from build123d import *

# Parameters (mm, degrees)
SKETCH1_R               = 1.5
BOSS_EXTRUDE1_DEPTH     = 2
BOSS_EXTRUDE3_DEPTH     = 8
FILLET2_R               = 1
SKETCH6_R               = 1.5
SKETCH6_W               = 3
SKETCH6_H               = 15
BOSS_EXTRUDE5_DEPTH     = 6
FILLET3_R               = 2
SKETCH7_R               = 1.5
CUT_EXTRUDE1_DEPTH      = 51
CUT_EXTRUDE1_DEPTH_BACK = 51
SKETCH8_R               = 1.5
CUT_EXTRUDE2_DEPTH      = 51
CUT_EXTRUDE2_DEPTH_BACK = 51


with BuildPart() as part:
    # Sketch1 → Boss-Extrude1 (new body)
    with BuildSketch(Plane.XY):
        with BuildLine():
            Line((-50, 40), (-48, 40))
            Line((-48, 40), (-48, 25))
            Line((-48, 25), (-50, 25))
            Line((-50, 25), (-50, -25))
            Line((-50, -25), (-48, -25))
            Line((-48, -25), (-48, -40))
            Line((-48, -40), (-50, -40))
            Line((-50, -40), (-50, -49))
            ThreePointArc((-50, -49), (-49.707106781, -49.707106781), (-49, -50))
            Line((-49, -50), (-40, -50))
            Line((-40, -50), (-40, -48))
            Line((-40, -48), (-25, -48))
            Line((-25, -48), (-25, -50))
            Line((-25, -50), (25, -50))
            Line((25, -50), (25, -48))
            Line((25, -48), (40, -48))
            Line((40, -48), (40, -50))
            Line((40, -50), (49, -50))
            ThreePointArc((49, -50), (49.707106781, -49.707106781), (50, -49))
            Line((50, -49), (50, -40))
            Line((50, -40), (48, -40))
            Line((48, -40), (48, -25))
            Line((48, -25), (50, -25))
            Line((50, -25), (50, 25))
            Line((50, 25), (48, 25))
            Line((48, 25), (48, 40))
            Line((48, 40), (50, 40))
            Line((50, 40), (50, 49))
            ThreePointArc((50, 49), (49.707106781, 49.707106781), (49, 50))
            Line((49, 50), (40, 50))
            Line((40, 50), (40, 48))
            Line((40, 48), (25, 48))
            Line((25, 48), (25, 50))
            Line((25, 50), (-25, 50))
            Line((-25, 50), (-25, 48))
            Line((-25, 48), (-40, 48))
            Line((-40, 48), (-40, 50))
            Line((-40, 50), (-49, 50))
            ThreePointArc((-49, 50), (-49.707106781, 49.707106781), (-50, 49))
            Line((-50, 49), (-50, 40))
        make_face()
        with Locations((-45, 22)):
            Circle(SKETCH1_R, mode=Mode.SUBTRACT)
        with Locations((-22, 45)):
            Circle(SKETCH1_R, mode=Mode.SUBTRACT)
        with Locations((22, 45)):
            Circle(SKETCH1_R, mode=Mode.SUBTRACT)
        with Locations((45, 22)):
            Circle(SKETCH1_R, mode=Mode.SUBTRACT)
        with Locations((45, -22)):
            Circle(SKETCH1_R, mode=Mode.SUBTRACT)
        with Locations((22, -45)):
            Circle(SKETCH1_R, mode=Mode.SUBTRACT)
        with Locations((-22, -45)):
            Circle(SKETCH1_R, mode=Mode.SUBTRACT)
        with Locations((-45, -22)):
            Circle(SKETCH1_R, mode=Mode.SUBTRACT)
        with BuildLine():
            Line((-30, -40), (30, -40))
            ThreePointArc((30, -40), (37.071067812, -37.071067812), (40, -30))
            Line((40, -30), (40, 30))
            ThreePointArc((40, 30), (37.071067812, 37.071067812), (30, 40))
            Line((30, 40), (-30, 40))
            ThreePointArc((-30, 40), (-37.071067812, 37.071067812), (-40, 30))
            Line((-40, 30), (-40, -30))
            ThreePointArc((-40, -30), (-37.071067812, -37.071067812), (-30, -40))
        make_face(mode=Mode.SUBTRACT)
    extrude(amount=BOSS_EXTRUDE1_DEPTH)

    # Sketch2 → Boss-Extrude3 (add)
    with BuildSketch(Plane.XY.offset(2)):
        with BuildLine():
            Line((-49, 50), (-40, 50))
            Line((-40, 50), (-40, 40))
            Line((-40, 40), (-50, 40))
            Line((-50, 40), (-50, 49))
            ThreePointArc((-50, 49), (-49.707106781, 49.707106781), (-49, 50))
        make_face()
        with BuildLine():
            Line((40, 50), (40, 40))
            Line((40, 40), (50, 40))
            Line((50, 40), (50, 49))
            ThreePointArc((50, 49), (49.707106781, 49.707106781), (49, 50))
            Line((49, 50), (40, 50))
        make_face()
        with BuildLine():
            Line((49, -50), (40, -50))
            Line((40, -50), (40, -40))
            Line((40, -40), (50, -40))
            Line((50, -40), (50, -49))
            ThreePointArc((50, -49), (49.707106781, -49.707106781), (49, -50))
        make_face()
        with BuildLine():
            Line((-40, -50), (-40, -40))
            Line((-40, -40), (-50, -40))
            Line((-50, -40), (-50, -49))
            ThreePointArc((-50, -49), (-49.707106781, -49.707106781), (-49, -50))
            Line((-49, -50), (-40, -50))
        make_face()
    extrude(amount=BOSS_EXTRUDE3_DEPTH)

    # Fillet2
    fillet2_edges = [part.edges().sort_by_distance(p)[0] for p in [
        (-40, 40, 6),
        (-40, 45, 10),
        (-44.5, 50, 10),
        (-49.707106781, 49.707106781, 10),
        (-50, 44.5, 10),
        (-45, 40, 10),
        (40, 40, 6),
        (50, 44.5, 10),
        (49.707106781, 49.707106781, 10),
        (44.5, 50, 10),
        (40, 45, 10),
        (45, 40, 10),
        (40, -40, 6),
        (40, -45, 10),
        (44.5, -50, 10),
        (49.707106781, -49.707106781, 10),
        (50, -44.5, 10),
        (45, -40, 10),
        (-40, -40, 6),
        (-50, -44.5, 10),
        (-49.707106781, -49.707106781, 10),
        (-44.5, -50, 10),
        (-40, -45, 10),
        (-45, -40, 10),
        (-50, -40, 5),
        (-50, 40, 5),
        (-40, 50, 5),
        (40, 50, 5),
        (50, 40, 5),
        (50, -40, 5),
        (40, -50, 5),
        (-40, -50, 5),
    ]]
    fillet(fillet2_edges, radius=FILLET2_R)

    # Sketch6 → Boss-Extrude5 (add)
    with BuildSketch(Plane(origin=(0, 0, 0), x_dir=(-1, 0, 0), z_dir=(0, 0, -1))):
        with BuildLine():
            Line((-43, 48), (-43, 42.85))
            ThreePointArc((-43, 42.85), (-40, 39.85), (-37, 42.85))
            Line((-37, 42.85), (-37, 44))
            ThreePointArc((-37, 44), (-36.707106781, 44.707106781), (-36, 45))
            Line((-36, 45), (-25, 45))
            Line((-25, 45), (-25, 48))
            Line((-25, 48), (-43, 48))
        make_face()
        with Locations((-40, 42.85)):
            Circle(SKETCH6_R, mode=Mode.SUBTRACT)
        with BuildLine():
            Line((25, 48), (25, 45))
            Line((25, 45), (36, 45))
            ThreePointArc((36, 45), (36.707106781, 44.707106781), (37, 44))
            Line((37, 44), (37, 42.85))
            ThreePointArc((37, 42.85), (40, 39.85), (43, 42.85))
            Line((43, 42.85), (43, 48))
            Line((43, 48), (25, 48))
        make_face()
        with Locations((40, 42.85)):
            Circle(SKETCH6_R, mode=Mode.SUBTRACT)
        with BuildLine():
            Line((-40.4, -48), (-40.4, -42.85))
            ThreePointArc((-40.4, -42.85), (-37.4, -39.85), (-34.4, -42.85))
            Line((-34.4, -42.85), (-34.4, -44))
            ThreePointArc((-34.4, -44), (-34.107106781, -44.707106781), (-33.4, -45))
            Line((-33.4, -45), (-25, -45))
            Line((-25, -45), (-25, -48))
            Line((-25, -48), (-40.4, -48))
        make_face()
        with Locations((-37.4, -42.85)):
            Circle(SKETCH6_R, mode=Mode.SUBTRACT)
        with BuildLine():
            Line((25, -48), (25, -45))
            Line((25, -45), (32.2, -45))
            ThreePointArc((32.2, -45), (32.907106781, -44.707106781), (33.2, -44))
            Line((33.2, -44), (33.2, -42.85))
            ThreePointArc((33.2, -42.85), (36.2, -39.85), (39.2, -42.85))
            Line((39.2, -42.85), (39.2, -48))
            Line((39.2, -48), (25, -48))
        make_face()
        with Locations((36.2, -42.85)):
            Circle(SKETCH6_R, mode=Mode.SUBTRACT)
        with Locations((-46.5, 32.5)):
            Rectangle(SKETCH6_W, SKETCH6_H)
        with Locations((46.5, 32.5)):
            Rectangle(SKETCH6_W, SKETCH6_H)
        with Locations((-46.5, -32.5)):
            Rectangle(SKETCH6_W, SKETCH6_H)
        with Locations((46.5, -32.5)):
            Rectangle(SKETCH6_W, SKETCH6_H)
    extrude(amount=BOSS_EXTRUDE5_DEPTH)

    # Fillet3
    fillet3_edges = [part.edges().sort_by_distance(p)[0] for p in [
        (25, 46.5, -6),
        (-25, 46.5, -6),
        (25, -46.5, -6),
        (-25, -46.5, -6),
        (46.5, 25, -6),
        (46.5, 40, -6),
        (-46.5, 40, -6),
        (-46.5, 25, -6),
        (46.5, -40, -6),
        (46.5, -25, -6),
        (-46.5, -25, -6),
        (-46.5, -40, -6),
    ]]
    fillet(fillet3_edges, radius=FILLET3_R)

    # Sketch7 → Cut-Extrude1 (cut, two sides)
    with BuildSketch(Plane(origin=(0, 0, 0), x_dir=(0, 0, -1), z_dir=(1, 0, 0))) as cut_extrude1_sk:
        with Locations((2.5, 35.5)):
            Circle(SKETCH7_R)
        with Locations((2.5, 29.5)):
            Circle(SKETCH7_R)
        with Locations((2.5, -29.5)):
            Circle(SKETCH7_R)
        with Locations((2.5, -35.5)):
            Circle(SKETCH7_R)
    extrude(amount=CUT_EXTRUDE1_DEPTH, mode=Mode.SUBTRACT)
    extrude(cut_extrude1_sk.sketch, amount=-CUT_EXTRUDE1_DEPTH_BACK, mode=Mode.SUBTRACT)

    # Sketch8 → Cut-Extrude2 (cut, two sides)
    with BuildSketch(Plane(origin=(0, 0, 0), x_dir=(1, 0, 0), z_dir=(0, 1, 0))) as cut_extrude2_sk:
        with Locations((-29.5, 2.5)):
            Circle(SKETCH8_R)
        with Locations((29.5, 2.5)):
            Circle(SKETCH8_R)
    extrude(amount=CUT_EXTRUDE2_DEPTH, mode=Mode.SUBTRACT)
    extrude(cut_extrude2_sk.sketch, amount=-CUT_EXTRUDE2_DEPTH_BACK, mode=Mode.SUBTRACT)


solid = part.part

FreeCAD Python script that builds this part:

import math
import FreeCAD as App
import Part
import Sketcher

V = App.Vector
Q = App.Units.Quantity


def edges_at(feature, points):
    """Names of the edges that pass closest to the given points."""
    edges = feature.Shape.Edges
    near = lambda p: min(range(len(edges)), key=lambda i: edges[i].distToShape(Part.Vertex(*p))[0])
    return sorted({f"Edge{near(p) + 1}" for p in points})


def add_polygon(sketch, points):
    """Adds a closed chain of lines whose ends are joined by coincident constraints."""
    first, n = sketch.GeometryCount, len(points)
    for a, b in zip(points, points[1:] + points[:1]):
        sketch.addGeometry(Part.LineSegment(App.Vector(*a, 0), App.Vector(*b, 0)), False)
    for i in range(n):
        sketch.addConstraint(Sketcher.Constraint("Coincident", first + i, 2, first + (i + 1) % n, 1))

doc = App.newDocument("Part")
body = doc.addObject("PartDesign::Body", "Body")

# Sketch on XY plane
sketch1 = doc.addObject("Sketcher::SketchObject", "Sketch")
body.addObject(sketch1)
sketch1.AttachmentSupport = (doc.XY_Plane, [""])
sketch1.MapMode = "FlatFace"
sketch1.addGeometry([
    Part.LineSegment(V(-50, 40, 0), V(-48, 40, 0)),  # 0
    Part.LineSegment(V(-48, 40, 0), V(-48, 25, 0)),  # 1
    Part.LineSegment(V(-48, 25, 0), V(-50, 25, 0)),  # 2
    Part.LineSegment(V(-50, 25, 0), V(-50, -25, 0)),  # 3
    Part.LineSegment(V(-50, -25, 0), V(-48, -25, 0)),  # 4
    Part.LineSegment(V(-48, -25, 0), V(-48, -40, 0)),  # 5
    Part.LineSegment(V(-48, -40, 0), V(-50, -40, 0)),  # 6
    Part.LineSegment(V(-50, -40, 0), V(-50, -49, 0)),  # 7
    Part.ArcOfCircle(Part.Circle(V(-49, -49, 0), V(0, 0, 1), 1), math.radians(-180), math.radians(-90)),  # 8
    Part.LineSegment(V(-49, -50, 0), V(-40, -50, 0)),  # 9
    Part.LineSegment(V(-40, -50, 0), V(-40, -48, 0)),  # 10
    Part.LineSegment(V(-40, -48, 0), V(-25, -48, 0)),  # 11
    Part.LineSegment(V(-25, -48, 0), V(-25, -50, 0)),  # 12
    Part.LineSegment(V(-25, -50, 0), V(25, -50, 0)),  # 13
    Part.LineSegment(V(25, -50, 0), V(25, -48, 0)),  # 14
    Part.LineSegment(V(25, -48, 0), V(40, -48, 0)),  # 15
    Part.LineSegment(V(40, -48, 0), V(40, -50, 0)),  # 16
    Part.LineSegment(V(40, -50, 0), V(49, -50, 0)),  # 17
    Part.ArcOfCircle(Part.Circle(V(49, -49, 0), V(0, 0, 1), 1), math.radians(-90), math.radians(0)),  # 18
    Part.LineSegment(V(50, -49, 0), V(50, -40, 0)),  # 19
    Part.LineSegment(V(50, -40, 0), V(48, -40, 0)),  # 20
    Part.LineSegment(V(48, -40, 0), V(48, -25, 0)),  # 21
    Part.LineSegment(V(48, -25, 0), V(50, -25, 0)),  # 22
    Part.LineSegment(V(50, -25, 0), V(50, 25, 0)),  # 23
    Part.LineSegment(V(50, 25, 0), V(48, 25, 0)),  # 24
    Part.LineSegment(V(48, 25, 0), V(48, 40, 0)),  # 25
    Part.LineSegment(V(48, 40, 0), V(50, 40, 0)),  # 26
    Part.LineSegment(V(50, 40, 0), V(50, 49, 0)),  # 27
    Part.ArcOfCircle(Part.Circle(V(49, 49, 0), V(0, 0, 1), 1), math.radians(0), math.radians(90)),  # 28
    Part.LineSegment(V(49, 50, 0), V(40, 50, 0)),  # 29
    Part.LineSegment(V(40, 50, 0), V(40, 48, 0)),  # 30
    Part.LineSegment(V(40, 48, 0), V(25, 48, 0)),  # 31
    Part.LineSegment(V(25, 48, 0), V(25, 50, 0)),  # 32
    Part.LineSegment(V(25, 50, 0), V(-25, 50, 0)),  # 33
    Part.LineSegment(V(-25, 50, 0), V(-25, 48, 0)),  # 34
    Part.LineSegment(V(-25, 48, 0), V(-40, 48, 0)),  # 35
    Part.LineSegment(V(-40, 48, 0), V(-40, 50, 0)),  # 36
    Part.LineSegment(V(-40, 50, 0), V(-49, 50, 0)),  # 37
    Part.ArcOfCircle(Part.Circle(V(-49, 49, 0), V(0, 0, 1), 1), math.radians(90), math.radians(180)),  # 38
    Part.LineSegment(V(-50, 49, 0), V(-50, 40, 0)),  # 39
    Part.Circle(V(-22, -45, 0), V(0, 0, 1), 1.5),  # 40
    Part.Circle(V(-45, -22, 0), V(0, 0, 1), 1.5),  # 41
    Part.Circle(V(22, -45, 0), V(0, 0, 1), 1.5),  # 42
    Part.Circle(V(45, -22, 0), V(0, 0, 1), 1.5),  # 43
    Part.Circle(V(-45, 22, 0), V(0, 0, 1), 1.5),  # 44
    Part.Circle(V(-22, 45, 0), V(0, 0, 1), 1.5),  # 45
    Part.LineSegment(V(30, -40, 0), V(-30, -40, 0)),  # 46
    Part.ArcOfCircle(Part.Circle(V(-30, -30, 0), V(0, 0, 1), 10), math.radians(180), math.radians(270)),  # 47
    Part.LineSegment(V(-40, -30, 0), V(-40, 30, 0)),  # 48
    Part.ArcOfCircle(Part.Circle(V(-30, 30, 0), V(0, 0, 1), 10), math.radians(90), math.radians(180)),  # 49
    Part.LineSegment(V(-30, 40, 0), V(30, 40, 0)),  # 50
    Part.ArcOfCircle(Part.Circle(V(30, 30, 0), V(0, 0, 1), 10), math.radians(0), math.radians(90)),  # 51
    Part.LineSegment(V(40, 30, 0), V(40, -30, 0)),  # 52
    Part.ArcOfCircle(Part.Circle(V(30, -30, 0), V(0, 0, 1), 10), math.radians(-90), math.radians(0)),  # 53
    Part.Circle(V(45, 22, 0), V(0, 0, 1), 1.5),  # 54
    Part.Circle(V(22, 45, 0), V(0, 0, 1), 1.5),  # 55
], False)
sketch1.addConstraint([
    Sketcher.Constraint("Coincident", 0, 2, 1, 1),
    Sketcher.Constraint("Coincident", 1, 2, 2, 1),
    Sketcher.Constraint("Coincident", 2, 2, 3, 1),
    Sketcher.Constraint("Coincident", 3, 2, 4, 1),
    Sketcher.Constraint("Coincident", 4, 2, 5, 1),
    Sketcher.Constraint("Coincident", 5, 2, 6, 1),
    Sketcher.Constraint("Coincident", 6, 2, 7, 1),
    Sketcher.Constraint("Tangent", 7, 2, 8, 1),
    Sketcher.Constraint("Tangent", 8, 2, 9, 1),
    Sketcher.Constraint("Coincident", 9, 2, 10, 1),
    Sketcher.Constraint("Coincident", 10, 2, 11, 1),
    Sketcher.Constraint("Coincident", 11, 2, 12, 1),
    Sketcher.Constraint("Coincident", 12, 2, 13, 1),
    Sketcher.Constraint("Coincident", 13, 2, 14, 1),
    Sketcher.Constraint("Coincident", 14, 2, 15, 1),
    Sketcher.Constraint("Coincident", 15, 2, 16, 1),
    Sketcher.Constraint("Coincident", 16, 2, 17, 1),
    Sketcher.Constraint("Tangent", 17, 2, 18, 1),
    Sketcher.Constraint("Tangent", 18, 2, 19, 1),
    Sketcher.Constraint("Coincident", 19, 2, 20, 1),
    Sketcher.Constraint("Coincident", 20, 2, 21, 1),
    Sketcher.Constraint("Coincident", 21, 2, 22, 1),
    Sketcher.Constraint("Coincident", 22, 2, 23, 1),
    Sketcher.Constraint("Coincident", 23, 2, 24, 1),
    Sketcher.Constraint("Coincident", 24, 2, 25, 1),
    Sketcher.Constraint("Coincident", 25, 2, 26, 1),
    Sketcher.Constraint("Coincident", 26, 2, 27, 1),
    Sketcher.Constraint("Tangent", 27, 2, 28, 1),
    Sketcher.Constraint("Tangent", 28, 2, 29, 1),
    Sketcher.Constraint("Coincident", 29, 2, 30, 1),
    Sketcher.Constraint("Coincident", 30, 2, 31, 1),
    Sketcher.Constraint("Coincident", 31, 2, 32, 1),
    Sketcher.Constraint("Coincident", 32, 2, 33, 1),
    Sketcher.Constraint("Coincident", 33, 2, 34, 1),
    Sketcher.Constraint("Coincident", 34, 2, 35, 1),
    Sketcher.Constraint("Coincident", 35, 2, 36, 1),
    Sketcher.Constraint("Coincident", 36, 2, 37, 1),
    Sketcher.Constraint("Tangent", 37, 2, 38, 1),
    Sketcher.Constraint("Tangent", 38, 2, 39, 1),
    Sketcher.Constraint("Coincident", 39, 2, 0, 1),
    Sketcher.Constraint("Tangent", 46, 2, 47, 2),
    Sketcher.Constraint("Tangent", 47, 1, 48, 1),
    Sketcher.Constraint("Tangent", 48, 2, 49, 2),
    Sketcher.Constraint("Tangent", 49, 1, 50, 1),
    Sketcher.Constraint("Tangent", 50, 2, 51, 2),
    Sketcher.Constraint("Tangent", 51, 1, 52, 1),
    Sketcher.Constraint("Tangent", 52, 2, 53, 2),
    Sketcher.Constraint("Tangent", 53, 1, 46, 1),
    Sketcher.Constraint("Horizontal", 0),
    Sketcher.Constraint("Vertical", 1),
    Sketcher.Constraint("Horizontal", 2),
    Sketcher.Constraint("Vertical", 3),
    Sketcher.Constraint("Horizontal", 4),
    Sketcher.Constraint("Vertical", 5),
    Sketcher.Constraint("Horizontal", 6),
    Sketcher.Constraint("Vertical", 7),
    Sketcher.Constraint("Horizontal", 9),
    Sketcher.Constraint("Vertical", 10),
    Sketcher.Constraint("Horizontal", 11),
    Sketcher.Constraint("Vertical", 12),
    Sketcher.Constraint("Horizontal", 13),
    Sketcher.Constraint("Vertical", 14),
    Sketcher.Constraint("Horizontal", 15),
    Sketcher.Constraint("Vertical", 16),
    Sketcher.Constraint("Horizontal", 17),
    Sketcher.Constraint("Vertical", 19),
    Sketcher.Constraint("Horizontal", 20),
    Sketcher.Constraint("Vertical", 21),
    Sketcher.Constraint("Horizontal", 22),
    Sketcher.Constraint("Vertical", 23),
    Sketcher.Constraint("Horizontal", 24),
    Sketcher.Constraint("Vertical", 25),
    Sketcher.Constraint("Horizontal", 26),
    Sketcher.Constraint("Vertical", 27),
    Sketcher.Constraint("Horizontal", 29),
    Sketcher.Constraint("Vertical", 30),
    Sketcher.Constraint("Horizontal", 31),
    Sketcher.Constraint("Vertical", 32),
    Sketcher.Constraint("Horizontal", 33),
    Sketcher.Constraint("Vertical", 34),
    Sketcher.Constraint("Horizontal", 35),
    Sketcher.Constraint("Vertical", 36),
    Sketcher.Constraint("Horizontal", 37),
    Sketcher.Constraint("Vertical", 39),
    Sketcher.Constraint("Horizontal", 46),
    Sketcher.Constraint("Vertical", 48),
    Sketcher.Constraint("Horizontal", 50),
    Sketcher.Constraint("Vertical", 52),
    Sketcher.Constraint("Equal", 8, 18),
    Sketcher.Constraint("Equal", 18, 28),
    Sketcher.Constraint("Equal", 28, 38),
    Sketcher.Constraint("Equal", 40, 41),
    Sketcher.Constraint("Equal", 41, 42),
    Sketcher.Constraint("Equal", 42, 43),
    Sketcher.Constraint("Equal", 43, 44),
    Sketcher.Constraint("Equal", 44, 45),
    Sketcher.Constraint("Equal", 47, 49),
    Sketcher.Constraint("Equal", 49, 51),
    Sketcher.Constraint("Equal", 51, 53),
    Sketcher.Constraint("Equal", 45, 54),
    Sketcher.Constraint("Equal", 54, 55),
    Sketcher.Constraint("Symmetric", 8, 3, 28, 3, -1, 1),
    Sketcher.Constraint("Symmetric", 18, 3, 38, 3, -1, 1),
    Sketcher.Constraint("Symmetric", 43, 3, 44, 3, -1, 1),
    Sketcher.Constraint("Symmetric", 42, 3, 45, 3, -1, 1),
    Sketcher.Constraint("Symmetric", 47, 3, 51, 3, -1, 1),
    Sketcher.Constraint("Symmetric", 41, 3, 54, 3, -1, 1),
    Sketcher.Constraint("Symmetric", 40, 3, 55, 3, -1, 1),
    Sketcher.Constraint("Symmetric", 0, 2, 20, 2, -1, 1),
    Sketcher.Constraint("Symmetric", 2, 2, 22, 2, -1, 1),
    Sketcher.Constraint("Symmetric", 4, 2, 24, 2, -1, 1),
    Sketcher.Constraint("Symmetric", 10, 2, 30, 2, -1, 1),
    Sketcher.Constraint("Symmetric", 12, 2, 32, 2, -1, 1),
    Sketcher.Constraint("Symmetric", 14, 2, 34, 2, -1, 1),
    Sketcher.Constraint("Symmetric", 8, 3, 18, 3, -2),
    Sketcher.Constraint("Symmetric", 40, 3, 42, 3, -2),
    Sketcher.Constraint("Symmetric", 41, 3, 43, 3, -2),
    Sketcher.Constraint("Symmetric", 11, 2, 14, 2, -2),
    Sketcher.Constraint("Symmetric", 5, 2, 20, 2, -2),
    Sketcher.Constraint("Horizontal", 9, 2, 12, 2),
    Sketcher.Constraint("Horizontal", 4, 2, 21, 2),
    Sketcher.Constraint("Horizontal", 0, 2, 25, 2),
    Sketcher.Constraint("Horizontal", 20, 2, 46, 2),
    Sketcher.Constraint("Vertical", 3, 2, 6, 2),
    Sketcher.Constraint("Vertical", 16, 2, 29, 2),
    Sketcher.Constraint("Vertical", 10, 2, 35, 2),
    Sketcher.Constraint("Vertical", 36, 2, 47, 1),
    Sketcher.Constraint("Equal", 35, 1),
    Sketcher.Constraint("Equal", 33, 3),
    Sketcher.Constraint("Equal", 37, 7),
    Sketcher.Constraint("Equal", 26, 10),
    Sketcher.Constraint("Diameter", 40, Q("3 mm")),
    Sketcher.Constraint("Radius", 8, Q("1 mm")),
    Sketcher.Constraint("Radius", 47, Q("10 mm")),
    Sketcher.Constraint("DistanceX", 0, 1, 0, 2, Q("2 mm")),
    Sketcher.Constraint("DistanceX", 9, 1, 9, 2, Q("9 mm")),
    Sketcher.Constraint("DistanceX", 11, 1, 11, 2, Q("15 mm")),
    Sketcher.Constraint("DistanceX", 13, 1, 13, 2, Q("50 mm")),
    Sketcher.Constraint("DistanceX", 40, 3, -1, 1, Q("22 mm")),
    Sketcher.Constraint("DistanceY", 40, 3, -1, 1, Q("45 mm")),
    Sketcher.Constraint("DistanceX", 41, 3, -1, 1, Q("45 mm")),
    Sketcher.Constraint("DistanceY", 41, 3, -1, 1, Q("22 mm")),
])
pad1 = doc.addObject("PartDesign::Pad", "Pad")
body.addObject(pad1)
pad1.Profile = sketch1
pad1.Length = 2

# Sketch on XY plane
sketch2 = doc.addObject("Sketcher::SketchObject", "Sketch001")
body.addObject(sketch2)
sketch2.AttachmentSupport = (doc.XY_Plane, [""])
sketch2.MapMode = "FlatFace"
sketch2.AttachmentOffset = App.Placement(V(0, 0, 2), App.Rotation())
sketch2.addGeometry([
    Part.LineSegment(V(-40, 50, 0), V(-49, 50, 0)),  # 0
    Part.ArcOfCircle(Part.Circle(V(-49, 49, 0), V(0, 0, 1), 1), math.radians(90), math.radians(180)),  # 1
    Part.LineSegment(V(-50, 49, 0), V(-50, 40, 0)),  # 2
    Part.LineSegment(V(-50, 40, 0), V(-40, 40, 0)),  # 3
    Part.LineSegment(V(-40, 40, 0), V(-40, 50, 0)),  # 4
    Part.LineSegment(V(40, 50, 0), V(40, 40, 0)),  # 5
    Part.LineSegment(V(40, 40, 0), V(50, 40, 0)),  # 6
    Part.LineSegment(V(50, 40, 0), V(50, 49, 0)),  # 7
    Part.ArcOfCircle(Part.Circle(V(49, 49, 0), V(0, 0, 1), 1), math.radians(0), math.radians(90)),  # 8
    Part.LineSegment(V(49, 50, 0), V(40, 50, 0)),  # 9
    Part.LineSegment(V(40, -50, 0), V(49, -50, 0)),  # 10
    Part.ArcOfCircle(Part.Circle(V(49, -49, 0), V(0, 0, 1), 1), math.radians(-90), math.radians(0)),  # 11
    Part.LineSegment(V(50, -49, 0), V(50, -40, 0)),  # 12
    Part.LineSegment(V(50, -40, 0), V(40, -40, 0)),  # 13
    Part.LineSegment(V(40, -40, 0), V(40, -50, 0)),  # 14
    Part.LineSegment(V(-40, -50, 0), V(-40, -40, 0)),  # 15
    Part.LineSegment(V(-40, -40, 0), V(-50, -40, 0)),  # 16
    Part.LineSegment(V(-50, -40, 0), V(-50, -49, 0)),  # 17
    Part.ArcOfCircle(Part.Circle(V(-49, -49, 0), V(0, 0, 1), 1), math.radians(-180), math.radians(-90)),  # 18
    Part.LineSegment(V(-49, -50, 0), V(-40, -50, 0)),  # 19
], False)
sketch2.addConstraint([
    Sketcher.Constraint("Tangent", 0, 2, 1, 1),
    Sketcher.Constraint("Tangent", 1, 2, 2, 1),
    Sketcher.Constraint("Coincident", 2, 2, 3, 1),
    Sketcher.Constraint("Coincident", 3, 2, 4, 1),
    Sketcher.Constraint("Coincident", 4, 2, 0, 1),
    Sketcher.Constraint("Coincident", 5, 2, 6, 1),
    Sketcher.Constraint("Coincident", 6, 2, 7, 1),
    Sketcher.Constraint("Tangent", 7, 2, 8, 1),
    Sketcher.Constraint("Tangent", 8, 2, 9, 1),
    Sketcher.Constraint("Coincident", 9, 2, 5, 1),
    Sketcher.Constraint("Tangent", 10, 2, 11, 1),
    Sketcher.Constraint("Tangent", 11, 2, 12, 1),
    Sketcher.Constraint("Coincident", 12, 2, 13, 1),
    Sketcher.Constraint("Coincident", 13, 2, 14, 1),
    Sketcher.Constraint("Coincident", 14, 2, 10, 1),
    Sketcher.Constraint("Coincident", 15, 2, 16, 1),
    Sketcher.Constraint("Coincident", 16, 2, 17, 1),
    Sketcher.Constraint("Tangent", 17, 2, 18, 1),
    Sketcher.Constraint("Tangent", 18, 2, 19, 1),
    Sketcher.Constraint("Coincident", 19, 2, 15, 1),
    Sketcher.Constraint("Horizontal", 0),
    Sketcher.Constraint("Vertical", 2),
    Sketcher.Constraint("Horizontal", 3),
    Sketcher.Constraint("Vertical", 4),
    Sketcher.Constraint("Vertical", 5),
    Sketcher.Constraint("Horizontal", 6),
    Sketcher.Constraint("Vertical", 7),
    Sketcher.Constraint("Horizontal", 9),
    Sketcher.Constraint("Horizontal", 10),
    Sketcher.Constraint("Vertical", 12),
    Sketcher.Constraint("Horizontal", 13),
    Sketcher.Constraint("Vertical", 14),
    Sketcher.Constraint("Vertical", 15),
    Sketcher.Constraint("Horizontal", 16),
    Sketcher.Constraint("Vertical", 17),
    Sketcher.Constraint("Horizontal", 19),
    Sketcher.Constraint("Equal", 1, 8),
    Sketcher.Constraint("Equal", 8, 11),
    Sketcher.Constraint("Equal", 11, 18),
    Sketcher.Constraint("Symmetric", 1, 3, 11, 3, -1, 1),
    Sketcher.Constraint("Symmetric", 8, 3, 18, 3, -1, 1),
    Sketcher.Constraint("Symmetric", 3, 2, 13, 2, -1, 1),
    Sketcher.Constraint("Symmetric", 5, 2, 15, 2, -1, 1),
    Sketcher.Constraint("Symmetric", 1, 3, 8, 3, -2),
    Sketcher.Constraint("Symmetric", 3, 2, 5, 2, -2),
    Sketcher.Constraint("Equal", 19, 2),
    Sketcher.Constraint("Radius", 1, Q("1 mm")),
    Sketcher.Constraint("DistanceX", 0, 2, 0, 1, Q("9 mm")),
    Sketcher.Constraint("DistanceX", 1, 3, -1, 1, Q("49 mm")),
    Sketcher.Constraint("DistanceY", -1, 1, 1, 3, Q("49 mm")),
])
pad2 = doc.addObject("PartDesign::Pad", "Pad001")
body.addObject(pad2)
pad2.Profile = sketch2
pad2.Length = 8
doc.recompute()

fillet = doc.addObject("PartDesign::Fillet", "Fillet")
body.addObject(fillet)
fillet.Base = (pad2, edges_at(pad2, [
    (-40, 40, 6),
    (-40, 45, 10),
    (-44.5, 50, 10),
    (-49.707, 49.707, 10),
    (-50, 44.5, 10),
    (-45, 40, 10),
    (40, 40, 6),
    (50, 44.5, 10),
    (49.707, 49.707, 10),
    (44.5, 50, 10),
    (40, 45, 10),
    (45, 40, 10),
    (40, -40, 6),
    (40, -45, 10),
    (44.5, -50, 10),
    (49.707, -49.707, 10),
    (50, -44.5, 10),
    (45, -40, 10),
    (-40, -40, 6),
    (-50, -44.5, 10),
    (-49.707, -49.707, 10),
    (-44.5, -50, 10),
    (-40, -45, 10),
    (-45, -40, 10),
    (-50, -40, 5),
    (-50, 40, 5),
    (-40, 50, 5),
    (40, 50, 5),
    (50, 40, 5),
    (50, -40, 5),
    (40, -50, 5),
    (-40, -50, 5),
]))
fillet.Radius = 1

# Sketch on XY plane
sketch3 = doc.addObject("Sketcher::SketchObject", "Sketch002")
body.addObject(sketch3)
sketch3.AttachmentSupport = (doc.XY_Plane, [""])
sketch3.MapMode = "FlatFace"
sketch3.addGeometry(Part.LineSegment(V(43, 48, 0), V(43, 42.9, 0)), False)  # 0
sketch3.addGeometry(Part.ArcOfCircle(Part.Circle(V(40, 42.9, 0), V(0, 0, 1), 3), math.radians(180), math.radians(360)), False)  # 1
sketch3.addGeometry(Part.LineSegment(V(37, 42.9, 0), V(37, 44, 0)), False)  # 2
sketch3.addGeometry(Part.ArcOfCircle(Part.Circle(V(36, 44, 0), V(0, 0, 1), 1), math.radians(0), math.radians(90)), False)  # 3
sketch3.addGeometry(Part.LineSegment(V(36, 45, 0), V(25, 45, 0)), False)  # 4
sketch3.addGeometry(Part.LineSegment(V(25, 45, 0), V(25, 48, 0)), False)  # 5
sketch3.addGeometry(Part.LineSegment(V(25, 48, 0), V(43, 48, 0)), False)  # 6
sketch3.addGeometry(Part.Circle(V(40, 42.9, 0), V(0, 0, 1), 1.5), False)  # 7
sketch3.addGeometry(Part.LineSegment(V(-25, 48, 0), V(-25, 45, 0)), False)  # 8
sketch3.addGeometry(Part.LineSegment(V(-25, 45, 0), V(-36, 45, 0)), False)  # 9
sketch3.addGeometry(Part.ArcOfCircle(Part.Circle(V(-36, 44, 0), V(0, 0, 1), 1), math.radians(90), math.radians(180)), False)  # 10
sketch3.addGeometry(Part.LineSegment(V(-37, 44, 0), V(-37, 42.9, 0)), False)  # 11
sketch3.addGeometry(Part.ArcOfCircle(Part.Circle(V(-40, 42.9, 0), V(0, 0, 1), 3), math.radians(180), math.radians(360)), False)  # 12
sketch3.addGeometry(Part.LineSegment(V(-43, 42.9, 0), V(-43, 48, 0)), False)  # 13
sketch3.addGeometry(Part.LineSegment(V(-43, 48, 0), V(-25, 48, 0)), False)  # 14
sketch3.addGeometry(Part.Circle(V(-40, 42.9, 0), V(0, 0, 1), 1.5), False)  # 15
sketch3.addGeometry(Part.LineSegment(V(40.4, -42.9, 0), V(40.4, -48, 0)), False)  # 16
sketch3.addGeometry(Part.LineSegment(V(40.4, -48, 0), V(25, -48, 0)), False)  # 17
sketch3.addGeometry(Part.LineSegment(V(25, -48, 0), V(25, -45, 0)), False)  # 18
sketch3.addGeometry(Part.LineSegment(V(25, -45, 0), V(33.4, -45, 0)), False)  # 19
sketch3.addGeometry(Part.ArcOfCircle(Part.Circle(V(33.4, -44, 0), V(0, 0, 1), 1), math.radians(-90), math.radians(0)), False)  # 20
sketch3.addGeometry(Part.LineSegment(V(34.4, -44, 0), V(34.4, -42.9, 0)), False)  # 21
sketch3.addGeometry(Part.ArcOfCircle(Part.Circle(V(37.4, -42.9, 0), V(0, 0, 1), 3), math.radians(0), math.radians(180)), False)  # 22
sketch3.addGeometry(Part.Circle(V(37.4, -42.9, 0), V(0, 0, 1), 1.5), False)  # 23
sketch3.addGeometry(Part.LineSegment(V(-25, -45, 0), V(-25, -48, 0)), False)  # 24
sketch3.addGeometry(Part.LineSegment(V(-25, -48, 0), V(-39.2, -48, 0)), False)  # 25
sketch3.addGeometry(Part.LineSegment(V(-39.2, -48, 0), V(-39.2, -42.9, 0)), False)  # 26
sketch3.addGeometry(Part.ArcOfCircle(Part.Circle(V(-36.2, -42.9, 0), V(0, 0, 1), 3), math.radians(0), math.radians(180)), False)  # 27
sketch3.addGeometry(Part.LineSegment(V(-33.2, -42.9, 0), V(-33.2, -44, 0)), False)  # 28
sketch3.addGeometry(Part.ArcOfCircle(Part.Circle(V(-32.2, -44, 0), V(0, 0, 1), 1), math.radians(-180), math.radians(-90)), False)  # 29
sketch3.addGeometry(Part.LineSegment(V(-32.2, -45, 0), V(-25, -45, 0)), False)  # 30
sketch3.addGeometry(Part.Circle(V(-36.2, -42.9, 0), V(0, 0, 1), 1.5), False)  # 31
add_polygon(sketch3, [(48, 40), (48, 25), (45, 25), (45, 40)])  # lines 32-35
add_polygon(sketch3, [(-45, 40), (-45, 25), (-48, 25), (-48, 40)])  # lines 36-39
add_polygon(sketch3, [(48, -25), (48, -40), (45, -40), (45, -25)])  # lines 40-43
add_polygon(sketch3, [(-45, -25), (-45, -40), (-48, -40), (-48, -25)])  # lines 44-47
sketch3.addConstraint([
    Sketcher.Constraint("Tangent", 0, 2, 1, 2),
    Sketcher.Constraint("Tangent", 1, 1, 2, 1),
    Sketcher.Constraint("Tangent", 2, 2, 3, 1),
    Sketcher.Constraint("Tangent", 3, 2, 4, 1),
    Sketcher.Constraint("Coincident", 4, 2, 5, 1),
    Sketcher.Constraint("Coincident", 5, 2, 6, 1),
    Sketcher.Constraint("Coincident", 6, 2, 0, 1),
    Sketcher.Constraint("Coincident", 8, 2, 9, 1),
    Sketcher.Constraint("Tangent", 9, 2, 10, 1),
    Sketcher.Constraint("Tangent", 10, 2, 11, 1),
    Sketcher.Constraint("Tangent", 11, 2, 12, 2),
    Sketcher.Constraint("Tangent", 12, 1, 13, 1),
    Sketcher.Constraint("Coincident", 13, 2, 14, 1),
    Sketcher.Constraint("Coincident", 14, 2, 8, 1),
    Sketcher.Constraint("Coincident", 16, 2, 17, 1),
    Sketcher.Constraint("Coincident", 17, 2, 18, 1),
    Sketcher.Constraint("Coincident", 18, 2, 19, 1),
    Sketcher.Constraint("Tangent", 19, 2, 20, 1),
    Sketcher.Constraint("Tangent", 20, 2, 21, 1),
    Sketcher.Constraint("Tangent", 21, 2, 22, 2),
    Sketcher.Constraint("Tangent", 22, 1, 16, 1),
    Sketcher.Constraint("Coincident", 24, 2, 25, 1),
    Sketcher.Constraint("Coincident", 25, 2, 26, 1),
    Sketcher.Constraint("Tangent", 26, 2, 27, 2),
    Sketcher.Constraint("Tangent", 27, 1, 28, 1),
    Sketcher.Constraint("Tangent", 28, 2, 29, 1),
    Sketcher.Constraint("Tangent", 29, 2, 30, 1),
    Sketcher.Constraint("Coincident", 30, 2, 24, 1),
    Sketcher.Constraint("Vertical", 0),
    Sketcher.Constraint("Vertical", 2),
    Sketcher.Constraint("Horizontal", 4),
    Sketcher.Constraint("Vertical", 5),
    Sketcher.Constraint("Horizontal", 6),
    Sketcher.Constraint("Vertical", 8),
    Sketcher.Constraint("Horizontal", 9),
    Sketcher.Constraint("Vertical", 11),
    Sketcher.Constraint("Vertical", 13),
    Sketcher.Constraint("Horizontal", 14),
    Sketcher.Constraint("Vertical", 16),
    Sketcher.Constraint("Horizontal", 17),
    Sketcher.Constraint("Vertical", 18),
    Sketcher.Constraint("Horizontal", 19),
    Sketcher.Constraint("Vertical", 21),
    Sketcher.Constraint("Vertical", 24),
    Sketcher.Constraint("Horizontal", 25),
    Sketcher.Constraint("Vertical", 26),
    Sketcher.Constraint("Vertical", 28),
    Sketcher.Constraint("Horizontal", 30),
    Sketcher.Constraint("Vertical", 32),
    Sketcher.Constraint("Horizontal", 33),
    Sketcher.Constraint("Vertical", 34),
    Sketcher.Constraint("Horizontal", 35),
    Sketcher.Constraint("Vertical", 36),
    Sketcher.Constraint("Horizontal", 37),
    Sketcher.Constraint("Vertical", 38),
    Sketcher.Constraint("Horizontal", 39),
    Sketcher.Constraint("Vertical", 40),
    Sketcher.Constraint("Horizontal", 41),
    Sketcher.Constraint("Vertical", 42),
    Sketcher.Constraint("Horizontal", 43),
    Sketcher.Constraint("Vertical", 44),
    Sketcher.Constraint("Horizontal", 45),
    Sketcher.Constraint("Vertical", 46),
    Sketcher.Constraint("Horizontal", 47),
    Sketcher.Constraint("Coincident", 7, 3, 1, 3),
    Sketcher.Constraint("Coincident", 15, 3, 12, 3),
    Sketcher.Constraint("Coincident", 23, 3, 22, 3),
    Sketcher.Constraint("Coincident", 31, 3, 27, 3),
    Sketcher.Constraint("Equal", 3, 10),
    Sketcher.Constraint("Equal", 1, 12),
    Sketcher.Constraint("Equal", 7, 15),
    Sketcher.Constraint("Equal", 10, 20),
    Sketcher.Constraint("Equal", 12, 22),
    Sketcher.Constraint("Equal", 15, 23),
    Sketcher.Constraint("Equal", 22, 27),
    Sketcher.Constraint("Equal", 20, 29),
    Sketcher.Constraint("Equal", 23, 31),
    Sketcher.Constraint("Symmetric", 14, 2, 17, 2, -1, 1),
    Sketcher.Constraint("Symmetric", 5, 2, 24, 2, -1, 1),
    Sketcher.Constraint("Symmetric", 38, 2, 40, 2, -1, 1),
    Sketcher.Constraint("Symmetric", 36, 2, 42, 2, -1, 1),
    Sketcher.Constraint("Symmetric", 34, 2, 44, 2, -1, 1),
    Sketcher.Constraint("Symmetric", 32, 2, 46, 2, -1, 1),
    Sketcher.Constraint("Symmetric", 3, 3, 10, 3, -2),
    Sketcher.Constraint("Symmetric", 5, 2, 14, 2, -2),
    Sketcher.Constraint("Symmetric", 33, 2, 36, 2, -2),
    Sketcher.Constraint("Symmetric", 35, 2, 38, 2, -2),
    Sketcher.Constraint("Horizontal", 7, 3, 12, 3),
    Sketcher.Constraint("Horizontal", 23, 3, 27, 3),
    Sketcher.Constraint("Horizontal", 20, 3, 29, 3),
    Sketcher.Constraint("Equal", 47, 5),
    Sketcher.Constraint("Equal", 13, 16),
    Sketcher.Constraint("Equal", 8, 18),
    Sketcher.Constraint("Diameter", 7, Q("3 mm")),
    Sketcher.Constraint("Radius", 1, Q("3 mm")),
    Sketcher.Constraint("Radius", 3, Q("1 mm")),
    Sketcher.Constraint("DistanceX", 4, 2, 4, 1, Q("11 mm")),
    Sketcher.Constraint("DistanceX", 33, 2, 33, 1, Q("3 mm")),
    Sketcher.Constraint("DistanceY", 32, 2, 32, 1, Q("15 mm")),
    Sketcher.Constraint("DistanceX", 17, 2, 17, 1, Q("15.4 mm")),
    Sketcher.Constraint("DistanceX", 25, 2, 25, 1, Q("14.2 mm")),
    Sketcher.Constraint("DistanceX", -1, 1, 1, 3, Q("40 mm")),
    Sketcher.Constraint("DistanceY", -1, 1, 3, 3, Q("44 mm")),
    Sketcher.Constraint("DistanceX", -1, 1, 32, 2, Q("48 mm")),
    Sketcher.Constraint("DistanceY", -1, 1, 32, 2, Q("25 mm")),
    Sketcher.Constraint("DistanceY", 0, 2, 0, 1, Q("5.15 mm")),
])
pad3 = doc.addObject("PartDesign::Pad", "Pad002")
body.addObject(pad3)
pad3.Profile = sketch3
pad3.Length = 6
pad3.Reversed = True
doc.recompute()

fillet2 = doc.addObject("PartDesign::Fillet", "Fillet001")
body.addObject(fillet2)
fillet2.Base = (pad3, edges_at(pad3, [
    (25, 46.5, -6),
    (-25, 46.5, -6),
    (25, -46.5, -6),
    (-25, -46.5, -6),
    (46.5, 25, -6),
    (46.5, 40, -6),
    (-46.5, 40, -6),
    (-46.5, 25, -6),
    (46.5, -40, -6),
    (46.5, -25, -6),
    (-46.5, -25, -6),
    (-46.5, -40, -6),
]))
fillet2.Radius = 2

# Sketch on YZ plane
sketch4 = doc.addObject("Sketcher::SketchObject", "Sketch003")
body.addObject(sketch4)
sketch4.AttachmentSupport = (doc.YZ_Plane, [""])
sketch4.MapMode = "FlatFace"
sketch4.addGeometry([
    Part.Circle(V(35.5, -2.5, 0), V(0, 0, 1), 1.5),
    Part.Circle(V(29.5, -2.5, 0), V(0, 0, 1), 1.5),
    Part.Circle(V(-29.5, -2.5, 0), V(0, 0, 1), 1.5),
    Part.Circle(V(-35.5, -2.5, 0), V(0, 0, 1), 1.5),
], False)
sketch4.addConstraint([
    Sketcher.Constraint("Equal", 0, 1),
    Sketcher.Constraint("Equal", 1, 2),
    Sketcher.Constraint("Equal", 2, 3),
    Sketcher.Constraint("Symmetric", 1, 3, 2, 3, -2),
    Sketcher.Constraint("Symmetric", 0, 3, 3, 3, -2),
    Sketcher.Constraint("Horizontal", 0, 3, 1, 3),
    Sketcher.Constraint("Diameter", 0, Q("3 mm")),
    Sketcher.Constraint("DistanceX", 1, 3, 0, 3, Q("6 mm")),
    Sketcher.Constraint("DistanceX", 2, 3, 1, 3, Q("59 mm")),
    Sketcher.Constraint("DistanceY", 0, 3, -1, 1, Q("2.5 mm")),
])
pocket1 = doc.addObject("PartDesign::Pocket", "Pocket")
body.addObject(pocket1)
pocket1.Profile = sketch4
pocket1.Type = "ThroughAll"
pocket1.Midplane = True

# Sketch on XZ plane
sketch5 = doc.addObject("Sketcher::SketchObject", "Sketch004")
body.addObject(sketch5)
sketch5.AttachmentSupport = (doc.XZ_Plane, [""])
sketch5.MapMode = "FlatFace"
sketch5.addGeometry([
    Part.Circle(V(-29.5, -2.5, 0), V(0, 0, 1), 1.5),
    Part.Circle(V(29.5, -2.5, 0), V(0, 0, 1), 1.5),
], False)
sketch5.addConstraint([
    Sketcher.Constraint("Equal", 0, 1),
    Sketcher.Constraint("Symmetric", 0, 3, 1, 3, -2),
    Sketcher.Constraint("Diameter", 0, Q("3 mm")),
    Sketcher.Constraint("DistanceX", 0, 3, 1, 3, Q("59 mm")),
    Sketcher.Constraint("DistanceY", 0, 3, -1, 1, Q("2.5 mm")),
])
pocket2 = doc.addObject("PartDesign::Pocket", "Pocket001")
body.addObject(pocket2)
pocket2.Profile = sketch5
pocket2.Type = "ThroughAll"
pocket2.Midplane = True

doc.recompute()
